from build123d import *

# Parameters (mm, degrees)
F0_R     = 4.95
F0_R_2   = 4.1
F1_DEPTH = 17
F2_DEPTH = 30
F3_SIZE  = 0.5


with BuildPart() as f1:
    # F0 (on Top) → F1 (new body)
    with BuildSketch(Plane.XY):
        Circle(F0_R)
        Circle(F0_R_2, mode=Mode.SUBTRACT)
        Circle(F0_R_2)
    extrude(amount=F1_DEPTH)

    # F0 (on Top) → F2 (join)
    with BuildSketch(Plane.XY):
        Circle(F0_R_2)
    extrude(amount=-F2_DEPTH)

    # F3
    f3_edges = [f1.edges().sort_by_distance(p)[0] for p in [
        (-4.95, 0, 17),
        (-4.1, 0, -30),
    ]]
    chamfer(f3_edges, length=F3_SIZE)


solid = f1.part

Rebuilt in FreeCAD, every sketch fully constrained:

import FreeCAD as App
import Part
import Sketcher
Q = App.Units.Quantity


def edges_at(feature, points):
    """Names of the edges that pass closest to the given points."""
    edges = feature.Shape.Edges
    near = lambda p: min(range(len(edges)), key=lambda i: edges[i].distToShape(Part.Vertex(*p))[0])
    return sorted({f"Edge{near(p) + 1}" for p in points})

doc = App.newDocument("Part")
body = doc.addObject("PartDesign::Body", "Body")

sketch1 = doc.addObject("Sketcher::SketchObject", "Sketch")
body.addObject(sketch1)
sketch1.AttachmentSupport = (doc.XY_Plane, [""])
sketch1.MapMode = "FlatFace"
sketch1.addGeometry(Part.Circle(App.Vector(0, 0, 0), App.Vector(0, 0, 1), 4.95), False)
sketch1.addConstraint([
    Sketcher.Constraint("Coincident", 0, 3, -1, 1),
    Sketcher.Constraint("Diameter", 0, Q("9.9 mm")),
])
pad1 = doc.addObject("PartDesign::Pad", "Pad")
body.addObject(pad1)
pad1.Profile = sketch1
pad1.Length = 17

sketch2 = doc.addObject("Sketcher::SketchObject", "Sketch001")
body.addObject(sketch2)
sketch2.AttachmentSupport = (doc.XY_Plane, [""])
sketch2.MapMode = "FlatFace"
sketch2.addGeometry(Part.Circle(App.Vector(0, 0, 0), App.Vector(0, 0, 1), 4.1), False)
sketch2.addConstraint([
    Sketcher.Constraint("Coincident", 0, 3, -1, 1),
    Sketcher.Constraint("Diameter", 0, Q("8.2 mm")),
])
pad2 = doc.addObject("PartDesign::Pad", "Pad001")
body.addObject(pad2)
pad2.Profile = sketch2
pad2.Length = 30
pad2.Reversed = True
doc.recompute()

chamfer = doc.addObject("PartDesign::Chamfer", "Chamfer")
body.addObject(chamfer)
chamfer.Base = (pad2, edges_at(pad2, [(-4.95, 0, 17), (-4.1, 0, -30)]))
chamfer.Size = 0.5

doc.recompute()
